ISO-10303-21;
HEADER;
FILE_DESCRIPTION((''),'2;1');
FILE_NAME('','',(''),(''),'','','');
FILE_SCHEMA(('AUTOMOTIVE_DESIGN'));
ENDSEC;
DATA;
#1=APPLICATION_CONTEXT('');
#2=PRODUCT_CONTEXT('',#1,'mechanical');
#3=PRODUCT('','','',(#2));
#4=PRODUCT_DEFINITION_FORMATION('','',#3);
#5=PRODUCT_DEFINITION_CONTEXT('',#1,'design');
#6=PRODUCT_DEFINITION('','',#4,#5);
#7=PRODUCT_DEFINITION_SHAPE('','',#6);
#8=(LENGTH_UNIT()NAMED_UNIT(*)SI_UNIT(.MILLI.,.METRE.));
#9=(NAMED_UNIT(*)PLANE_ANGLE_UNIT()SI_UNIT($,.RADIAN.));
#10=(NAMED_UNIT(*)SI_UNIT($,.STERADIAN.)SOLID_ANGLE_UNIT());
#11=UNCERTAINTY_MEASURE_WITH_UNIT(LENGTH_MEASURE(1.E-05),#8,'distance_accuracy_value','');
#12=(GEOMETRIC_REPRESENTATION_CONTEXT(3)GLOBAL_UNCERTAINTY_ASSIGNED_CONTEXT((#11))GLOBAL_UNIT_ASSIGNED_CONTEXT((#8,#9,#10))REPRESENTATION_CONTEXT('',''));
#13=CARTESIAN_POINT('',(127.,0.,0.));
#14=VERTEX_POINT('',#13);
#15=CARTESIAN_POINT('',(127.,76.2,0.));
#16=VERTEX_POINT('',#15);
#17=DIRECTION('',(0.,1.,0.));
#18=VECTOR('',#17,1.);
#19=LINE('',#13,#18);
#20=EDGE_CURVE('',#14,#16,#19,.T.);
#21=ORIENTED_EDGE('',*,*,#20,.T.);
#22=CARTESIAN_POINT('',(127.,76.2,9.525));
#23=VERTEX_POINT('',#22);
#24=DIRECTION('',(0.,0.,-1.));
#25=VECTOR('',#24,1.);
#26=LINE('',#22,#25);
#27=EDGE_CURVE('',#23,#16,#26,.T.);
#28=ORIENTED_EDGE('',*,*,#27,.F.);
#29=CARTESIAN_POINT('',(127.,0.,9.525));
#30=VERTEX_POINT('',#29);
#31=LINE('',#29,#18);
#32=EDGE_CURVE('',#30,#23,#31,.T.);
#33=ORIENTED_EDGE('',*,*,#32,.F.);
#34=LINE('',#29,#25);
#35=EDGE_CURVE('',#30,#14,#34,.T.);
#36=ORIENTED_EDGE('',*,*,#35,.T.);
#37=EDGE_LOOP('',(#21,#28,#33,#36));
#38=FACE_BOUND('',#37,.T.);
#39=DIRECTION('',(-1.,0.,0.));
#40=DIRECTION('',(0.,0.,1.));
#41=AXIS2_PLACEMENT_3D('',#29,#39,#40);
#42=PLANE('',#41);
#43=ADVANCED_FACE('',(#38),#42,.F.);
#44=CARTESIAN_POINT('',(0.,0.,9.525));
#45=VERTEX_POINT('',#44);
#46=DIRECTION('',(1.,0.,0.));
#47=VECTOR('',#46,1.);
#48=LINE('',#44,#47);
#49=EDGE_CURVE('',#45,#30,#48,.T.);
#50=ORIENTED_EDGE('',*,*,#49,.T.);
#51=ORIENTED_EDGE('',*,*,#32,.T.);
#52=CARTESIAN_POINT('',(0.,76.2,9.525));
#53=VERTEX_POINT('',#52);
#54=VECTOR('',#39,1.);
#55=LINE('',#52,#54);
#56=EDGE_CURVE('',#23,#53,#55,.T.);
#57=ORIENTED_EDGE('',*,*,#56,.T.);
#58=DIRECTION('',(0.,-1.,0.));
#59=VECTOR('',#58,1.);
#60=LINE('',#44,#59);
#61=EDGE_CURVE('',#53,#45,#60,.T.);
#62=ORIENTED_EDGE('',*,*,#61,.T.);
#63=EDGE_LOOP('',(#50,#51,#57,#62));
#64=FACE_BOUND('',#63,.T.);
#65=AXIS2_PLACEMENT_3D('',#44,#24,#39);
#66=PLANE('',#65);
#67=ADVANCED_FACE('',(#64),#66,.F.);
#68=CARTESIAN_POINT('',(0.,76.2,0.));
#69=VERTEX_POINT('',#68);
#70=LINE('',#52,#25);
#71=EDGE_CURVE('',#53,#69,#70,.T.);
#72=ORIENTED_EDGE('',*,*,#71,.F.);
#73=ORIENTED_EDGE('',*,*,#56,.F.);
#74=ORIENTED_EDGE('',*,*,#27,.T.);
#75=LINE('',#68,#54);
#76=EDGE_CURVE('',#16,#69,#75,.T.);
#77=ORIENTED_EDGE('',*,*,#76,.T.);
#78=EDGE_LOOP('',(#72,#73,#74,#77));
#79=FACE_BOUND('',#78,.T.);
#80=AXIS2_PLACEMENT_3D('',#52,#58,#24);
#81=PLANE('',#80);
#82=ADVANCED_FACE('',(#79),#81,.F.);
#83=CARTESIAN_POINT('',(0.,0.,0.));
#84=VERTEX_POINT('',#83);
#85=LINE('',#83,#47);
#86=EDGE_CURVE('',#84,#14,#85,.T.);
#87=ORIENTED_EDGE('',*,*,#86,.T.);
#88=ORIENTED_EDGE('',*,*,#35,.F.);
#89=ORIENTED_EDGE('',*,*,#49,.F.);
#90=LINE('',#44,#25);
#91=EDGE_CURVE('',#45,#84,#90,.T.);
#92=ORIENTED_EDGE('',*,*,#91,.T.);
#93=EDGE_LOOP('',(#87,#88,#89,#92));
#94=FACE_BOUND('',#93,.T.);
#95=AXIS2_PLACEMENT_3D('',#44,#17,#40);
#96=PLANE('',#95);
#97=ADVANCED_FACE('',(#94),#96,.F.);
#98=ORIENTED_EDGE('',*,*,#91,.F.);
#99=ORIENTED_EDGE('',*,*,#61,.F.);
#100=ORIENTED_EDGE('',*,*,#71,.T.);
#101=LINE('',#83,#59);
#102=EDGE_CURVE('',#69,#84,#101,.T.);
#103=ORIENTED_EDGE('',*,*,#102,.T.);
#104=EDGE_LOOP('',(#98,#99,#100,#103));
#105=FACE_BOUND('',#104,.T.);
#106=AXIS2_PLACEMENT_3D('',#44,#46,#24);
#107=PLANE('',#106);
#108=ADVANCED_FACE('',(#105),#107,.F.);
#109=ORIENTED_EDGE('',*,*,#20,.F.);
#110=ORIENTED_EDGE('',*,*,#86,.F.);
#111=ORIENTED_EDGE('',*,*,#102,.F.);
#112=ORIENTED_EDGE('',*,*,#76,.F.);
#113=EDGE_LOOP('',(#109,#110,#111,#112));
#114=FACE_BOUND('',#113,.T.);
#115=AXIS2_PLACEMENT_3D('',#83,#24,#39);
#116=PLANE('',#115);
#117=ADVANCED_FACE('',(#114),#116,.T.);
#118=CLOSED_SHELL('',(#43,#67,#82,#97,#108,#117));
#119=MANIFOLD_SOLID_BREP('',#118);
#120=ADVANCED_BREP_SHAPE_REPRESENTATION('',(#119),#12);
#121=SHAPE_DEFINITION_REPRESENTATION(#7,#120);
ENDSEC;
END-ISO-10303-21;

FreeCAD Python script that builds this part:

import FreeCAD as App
import Part
import Sketcher
Q = App.Units.Quantity


def add_polygon(sketch, points):
    """Adds a closed chain of lines whose ends are joined by coincident constraints."""
    first, n = sketch.GeometryCount, len(points)
    for a, b in zip(points, points[1:] + points[:1]):
        sketch.addGeometry(Part.LineSegment(App.Vector(*a, 0), App.Vector(*b, 0)), False)
    for i in range(n):
        sketch.addConstraint(Sketcher.Constraint("Coincident", first + i, 2, first + (i + 1) % n, 1))

doc = App.newDocument("Part")
body = doc.addObject("PartDesign::Body", "Body")

# Sketch on XY plane
sketch1 = body.newObject("Sketcher::SketchObject", "Sketch")
sketch1.AttachmentSupport = (doc.getObject("XY_Plane"), [""])
sketch1.MapMode = "FlatFace"
add_polygon(sketch1, [(0, 76), (0, 0), (127, 0), (127, 76)])  # lines 0-3
sketch1.addConstraint(Sketcher.Constraint("Vertical", 0))
sketch1.addConstraint(Sketcher.Constraint("Horizontal", 1))
sketch1.addConstraint(Sketcher.Constraint("Vertical", 2))
sketch1.addConstraint(Sketcher.Constraint("Horizontal", 3))
sketch1.addConstraint(Sketcher.Constraint("Coincident", 0, 2, -1, 1))
sketch1.addConstraint(Sketcher.Constraint("DistanceX", 1, 1, 1, 2, Q("5 in")))
sketch1.addConstraint(Sketcher.Constraint("DistanceY", 0, 2, 0, 1, Q("3 in")))
pad1 = body.newObject("PartDesign::Pad", "Pad")
pad1.Profile = sketch1
pad1.Length = Q("0.375 in")

doc.recompute()
